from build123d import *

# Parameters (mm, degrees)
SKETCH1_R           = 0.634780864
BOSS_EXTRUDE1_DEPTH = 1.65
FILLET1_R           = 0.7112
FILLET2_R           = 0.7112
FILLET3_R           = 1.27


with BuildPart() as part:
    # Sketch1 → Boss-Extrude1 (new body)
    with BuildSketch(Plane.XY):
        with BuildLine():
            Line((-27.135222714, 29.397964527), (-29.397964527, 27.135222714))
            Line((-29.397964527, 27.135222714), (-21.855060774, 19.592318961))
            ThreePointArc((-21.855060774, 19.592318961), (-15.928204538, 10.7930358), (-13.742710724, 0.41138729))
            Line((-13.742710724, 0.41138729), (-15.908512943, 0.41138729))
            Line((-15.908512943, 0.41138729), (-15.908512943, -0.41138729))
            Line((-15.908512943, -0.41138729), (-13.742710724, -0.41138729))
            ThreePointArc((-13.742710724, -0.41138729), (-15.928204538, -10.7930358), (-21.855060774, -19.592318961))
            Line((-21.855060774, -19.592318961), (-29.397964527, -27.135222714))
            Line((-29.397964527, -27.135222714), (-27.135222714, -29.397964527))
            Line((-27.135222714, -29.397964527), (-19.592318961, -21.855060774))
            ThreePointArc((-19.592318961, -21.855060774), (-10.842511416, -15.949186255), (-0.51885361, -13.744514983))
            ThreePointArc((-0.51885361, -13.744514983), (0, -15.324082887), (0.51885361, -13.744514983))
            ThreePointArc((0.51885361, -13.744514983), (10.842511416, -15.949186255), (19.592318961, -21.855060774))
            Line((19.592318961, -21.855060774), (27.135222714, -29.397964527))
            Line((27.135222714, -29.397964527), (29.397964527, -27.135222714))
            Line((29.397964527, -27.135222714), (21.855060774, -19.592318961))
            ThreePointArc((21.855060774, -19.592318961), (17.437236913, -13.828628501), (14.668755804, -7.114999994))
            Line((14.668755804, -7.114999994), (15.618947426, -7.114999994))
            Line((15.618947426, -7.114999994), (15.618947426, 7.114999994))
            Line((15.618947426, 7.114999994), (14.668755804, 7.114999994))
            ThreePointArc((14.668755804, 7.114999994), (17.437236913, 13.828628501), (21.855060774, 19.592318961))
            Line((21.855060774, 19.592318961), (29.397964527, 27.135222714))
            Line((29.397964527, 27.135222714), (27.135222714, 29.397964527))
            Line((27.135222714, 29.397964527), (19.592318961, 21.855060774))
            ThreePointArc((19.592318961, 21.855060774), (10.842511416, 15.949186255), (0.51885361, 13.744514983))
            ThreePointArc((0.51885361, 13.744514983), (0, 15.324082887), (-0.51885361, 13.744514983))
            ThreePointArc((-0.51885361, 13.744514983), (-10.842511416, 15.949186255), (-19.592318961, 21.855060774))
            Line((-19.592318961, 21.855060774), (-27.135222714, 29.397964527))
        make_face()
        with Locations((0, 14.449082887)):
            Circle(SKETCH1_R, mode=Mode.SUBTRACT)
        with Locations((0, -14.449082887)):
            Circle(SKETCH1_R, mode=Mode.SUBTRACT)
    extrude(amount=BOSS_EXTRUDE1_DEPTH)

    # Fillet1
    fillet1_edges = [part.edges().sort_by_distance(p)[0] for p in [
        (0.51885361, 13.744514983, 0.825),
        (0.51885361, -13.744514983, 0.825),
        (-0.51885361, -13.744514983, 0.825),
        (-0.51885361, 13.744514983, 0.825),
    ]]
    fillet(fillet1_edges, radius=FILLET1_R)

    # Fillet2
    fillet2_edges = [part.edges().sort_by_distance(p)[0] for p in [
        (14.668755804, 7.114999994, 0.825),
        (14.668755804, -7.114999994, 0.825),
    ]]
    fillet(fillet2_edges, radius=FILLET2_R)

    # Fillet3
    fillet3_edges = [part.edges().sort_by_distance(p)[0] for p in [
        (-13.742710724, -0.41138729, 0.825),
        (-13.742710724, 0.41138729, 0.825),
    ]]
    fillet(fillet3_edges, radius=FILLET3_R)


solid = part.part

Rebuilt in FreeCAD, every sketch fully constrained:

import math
import FreeCAD as App
import Part
import Sketcher
from FreeCAD import Vector
Q = App.Units.Quantity


def edges_at(feature, points):
    """Names of the edges that pass closest to the given points."""
    edges = feature.Shape.Edges
    near = lambda p: min(range(len(edges)), key=lambda i: edges[i].distToShape(Part.Vertex(*p))[0])
    return sorted({f"Edge{near(p) + 1}" for p in points})

doc = App.newDocument("Part")
params = doc.addObject("Spreadsheet::Sheet", "Params")
for row, (alias, value) in enumerate([
    ("pad1_length", "1.65 mm"),
    ("fillet_radius", "0.028 in"),
    ("fillet2_radius", "0.028 in"),
    ("fillet3_radius", "0.05 in"),
], start=1):
    params.set(f"A{row}", alias)
    params.set(f"B{row}", "=" + value)
    params.setAlias(f"B{row}", alias)

body = doc.addObject("PartDesign::Body", "Body")

sketch1 = body.newObject("Sketcher::SketchObject", "Sketch")
sketch1.AttachmentSupport = (doc.getObject("XY_Plane"), [""])
sketch1.MapMode = "FlatFace"
sketch1.addGeometry(Part.LineSegment(Vector(-27.135223, 29.397965, 0), Vector(-29.397965, 27.135223, 0)), False)
sketch1.addGeometry(Part.LineSegment(Vector(-29.397965, 27.135223, 0), Vector(-21.855061, 19.592319, 0)), False)
sketch1.addGeometry(Part.ArcOfCircle(Part.Circle(Vector(-41.44738, 0, 0), Vector(0, 0, 1), 27.707723), math.radians(0.850724), math.radians(45)), False)
sketch1.addGeometry(Part.LineSegment(Vector(-13.742711, 0.411387, 0), Vector(-15.908513, 0.411387, 0)), False)
sketch1.addGeometry(Part.LineSegment(Vector(-15.908513, 0.411387, 0), Vector(-15.908513, -0.411387, 0)), False)
sketch1.addGeometry(Part.LineSegment(Vector(-15.908513, -0.411387, 0), Vector(-13.742711, -0.411387, 0)), False)
sketch1.addGeometry(Part.ArcOfCircle(Part.Circle(Vector(-41.44738, 0, 0), Vector(0, 0, 1), 27.707723), math.radians(-45), math.radians(-0.850724)), False)
sketch1.addGeometry(Part.LineSegment(Vector(-21.855061, -19.592319, 0), Vector(-29.397965, -27.135223, 0)), False)
sketch1.addGeometry(Part.LineSegment(Vector(-29.397965, -27.135223, 0), Vector(-27.135223, -29.397965, 0)), False)
sketch1.addGeometry(Part.LineSegment(Vector(-27.135223, -29.397965, 0), Vector(-19.592319, -21.855061, 0)), False)
sketch1.addGeometry(Part.ArcOfCircle(Part.Circle(Vector(0, -41.44738, 0), Vector(0, 0, 1), 27.707723), math.radians(91.072981), math.radians(135)), False)
sketch1.addGeometry(Part.ArcOfCircle(Part.Circle(Vector(0, -14.449083, 0), Vector(0, 0, 1), 0.875), math.radians(126.368448), math.radians(413.631552)), False)
sketch1.addGeometry(Part.ArcOfCircle(Part.Circle(Vector(0, -41.44738, 0), Vector(0, 0, 1), 27.707723), math.radians(45), math.radians(88.927019)), False)
sketch1.addGeometry(Part.LineSegment(Vector(19.592319, -21.855061, 0), Vector(27.135223, -29.397965, 0)), False)
sketch1.addGeometry(Part.LineSegment(Vector(27.135223, -29.397965, 0), Vector(29.397965, -27.135223, 0)), False)
sketch1.addGeometry(Part.LineSegment(Vector(29.397965, -27.135223, 0), Vector(21.855061, -19.592319, 0)), False)
sketch1.addGeometry(Part.ArcOfCircle(Part.Circle(Vector(41.44738, 0, 0), Vector(0, 0, 1), 27.707723), math.radians(-165.120465), math.radians(-135)), False)
sketch1.addGeometry(Part.LineSegment(Vector(14.668756, -7.115, 0), Vector(15.618947, -7.115, 0)), False)
sketch1.addGeometry(Part.LineSegment(Vector(15.618947, -7.115, 0), Vector(15.618947, 7.115, 0)), False)
sketch1.addGeometry(Part.LineSegment(Vector(15.618947, 7.115, 0), Vector(14.668756, 7.115, 0)), False)
sketch1.addGeometry(Part.ArcOfCircle(Part.Circle(Vector(41.44738, 0, 0), Vector(0, 0, 1), 27.707723), math.radians(135), math.radians(165.120465)), False)
sketch1.addGeometry(Part.LineSegment(Vector(21.855061, 19.592319, 0), Vector(29.397965, 27.135223, 0)), False)
sketch1.addGeometry(Part.LineSegment(Vector(29.397965, 27.135223, 0), Vector(27.135223, 29.397965, 0)), False)
sketch1.addGeometry(Part.LineSegment(Vector(27.135223, 29.397965, 0), Vector(19.592319, 21.855061, 0)), False)
sketch1.addGeometry(Part.ArcOfCircle(Part.Circle(Vector(0, 41.44738, 0), Vector(0, 0, 1), 27.707723), math.radians(-88.927019), math.radians(-45)), False)
sketch1.addGeometry(Part.ArcOfCircle(Part.Circle(Vector(0, 14.449083, 0), Vector(0, 0, 1), 0.875), math.radians(-53.631552), math.radians(233.631552)), False)
sketch1.addGeometry(Part.ArcOfCircle(Part.Circle(Vector(0, 41.44738, 0), Vector(0, 0, 1), 27.707723), math.radians(-135), math.radians(-91.072981)), False)
sketch1.addGeometry(Part.LineSegment(Vector(-19.592319, 21.855061, 0), Vector(-27.135223, 29.397965, 0)), False)
sketch1.addGeometry(Part.Circle(Vector(0, -14.449083, 0), Vector(0, 0, 1), 0.634781), False)
sketch1.addGeometry(Part.Circle(Vector(0, 14.449083, 0), Vector(0, 0, 1), 0.634781), False)
sketch1.addConstraint(Sketcher.Constraint("Coincident", 0, 2, 1, 1))
sketch1.addConstraint(Sketcher.Constraint("Tangent", 1, 2, 2, 2))
sketch1.addConstraint(Sketcher.Constraint("Coincident", 2, 1, 3, 1))
sketch1.addConstraint(Sketcher.Constraint("Coincident", 3, 2, 4, 1))
sketch1.addConstraint(Sketcher.Constraint("Coincident", 4, 2, 5, 1))
sketch1.addConstraint(Sketcher.Constraint("Coincident", 5, 2, 6, 2))
sketch1.addConstraint(Sketcher.Constraint("Tangent", 6, 1, 7, 1))
sketch1.addConstraint(Sketcher.Constraint("Coincident", 7, 2, 8, 1))
sketch1.addConstraint(Sketcher.Constraint("Coincident", 8, 2, 9, 1))
sketch1.addConstraint(Sketcher.Constraint("Tangent", 9, 2, 10, 2))
sketch1.addConstraint(Sketcher.Constraint("Coincident", 10, 1, 11, 1))
sketch1.addConstraint(Sketcher.Constraint("Coincident", 11, 2, 12, 2))
sketch1.addConstraint(Sketcher.Constraint("Tangent", 12, 1, 13, 1))
sketch1.addConstraint(Sketcher.Constraint("Coincident", 13, 2, 14, 1))
sketch1.addConstraint(Sketcher.Constraint("Coincident", 14, 2, 15, 1))
sketch1.addConstraint(Sketcher.Constraint("Tangent", 15, 2, 16, 2))
sketch1.addConstraint(Sketcher.Constraint("Coincident", 16, 1, 17, 1))
sketch1.addConstraint(Sketcher.Constraint("Coincident", 17, 2, 18, 1))
sketch1.addConstraint(Sketcher.Constraint("Coincident", 18, 2, 19, 1))
sketch1.addConstraint(Sketcher.Constraint("Coincident", 19, 2, 20, 2))
sketch1.addConstraint(Sketcher.Constraint("Tangent", 20, 1, 21, 1))
sketch1.addConstraint(Sketcher.Constraint("Coincident", 21, 2, 22, 1))
sketch1.addConstraint(Sketcher.Constraint("Coincident", 22, 2, 23, 1))
sketch1.addConstraint(Sketcher.Constraint("Tangent", 23, 2, 24, 2))
sketch1.addConstraint(Sketcher.Constraint("Coincident", 24, 1, 25, 1))
sketch1.addConstraint(Sketcher.Constraint("Coincident", 25, 2, 26, 2))
sketch1.addConstraint(Sketcher.Constraint("Tangent", 26, 1, 27, 1))
sketch1.addConstraint(Sketcher.Constraint("Coincident", 27, 2, 0, 1))
sketch1.addConstraint(Sketcher.Constraint("Horizontal", 3))
sketch1.addConstraint(Sketcher.Constraint("Vertical", 4))
sketch1.addConstraint(Sketcher.Constraint("Horizontal", 5))
sketch1.addConstraint(Sketcher.Constraint("Horizontal", 17))
sketch1.addConstraint(Sketcher.Constraint("Vertical", 18))
sketch1.addConstraint(Sketcher.Constraint("Horizontal", 19))
sketch1.addConstraint(Sketcher.Constraint("Coincident", 6, 3, 2, 3))
sketch1.addConstraint(Sketcher.Constraint("Coincident", 12, 3, 10, 3))
sketch1.addConstraint(Sketcher.Constraint("Coincident", 20, 3, 16, 3))
sketch1.addConstraint(Sketcher.Constraint("Coincident", 26, 3, 24, 3))
sketch1.addConstraint(Sketcher.Constraint("Coincident", 28, 3, 11, 3))
sketch1.addConstraint(Sketcher.Constraint("Coincident", 29, 3, 25, 3))
sketch1.addConstraint(Sketcher.Constraint("Equal", 2, 6))
sketch1.addConstraint(Sketcher.Constraint("Equal", 6, 10))
sketch1.addConstraint(Sketcher.Constraint("Equal", 10, 12))
sketch1.addConstraint(Sketcher.Constraint("Equal", 12, 16))
sketch1.addConstraint(Sketcher.Constraint("Equal", 16, 20))
sketch1.addConstraint(Sketcher.Constraint("Equal", 20, 24))
sketch1.addConstraint(Sketcher.Constraint("Equal", 11, 25))
sketch1.addConstraint(Sketcher.Constraint("Equal", 24, 26))
sketch1.addConstraint(Sketcher.Constraint("Equal", 28, 29))
sketch1.addConstraint(Sketcher.Constraint("Symmetric", 2, 3, 16, 3, -1, 1))
sketch1.addConstraint(Sketcher.Constraint("Symmetric", 10, 3, 24, 3, -1, 1))
sketch1.addConstraint(Sketcher.Constraint("Symmetric", 11, 3, 25, 3, -1, 1))
sketch1.addConstraint(Sketcher.Constraint("Symmetric", 0, 2, 14, 2, -1, 1))
sketch1.addConstraint(Sketcher.Constraint("Symmetric", 7, 2, 21, 2, -1, 1))
sketch1.addConstraint(Sketcher.Constraint("Symmetric", 8, 2, 22, 2, -1, 1))
sketch1.addConstraint(Sketcher.Constraint("Symmetric", 13, 2, 27, 2, -1, 1))
sketch1.addConstraint(Sketcher.Constraint("Symmetric", 10, 1, 11, 2, -2))
sketch1.addConstraint(Sketcher.Constraint("Symmetric", 8, 2, 13, 2, -2))
sketch1.addConstraint(Sketcher.Constraint("Symmetric", 7, 2, 14, 2, -2))
sketch1.addConstraint(Sketcher.Constraint("Symmetric", 2, 1, 5, 2, -1))
sketch1.addConstraint(Sketcher.Constraint("Perpendicular", 0, 1))
sketch1.addConstraint(Sketcher.Constraint("Perpendicular", 1, 7))
sketch1.addConstraint(Sketcher.Constraint("Perpendicular", 8, 9))
sketch1.addConstraint(Sketcher.Constraint("Vertical", 16, 1, 19, 2))
sketch1.addConstraint(Sketcher.Constraint("Equal", 7, 9))
sketch1.addConstraint(Sketcher.Constraint("Radius", 11, Q("0.875 mm")))
sketch1.addConstraint(Sketcher.Constraint("Diameter", 28, Q("1.269562 mm")))
sketch1.addConstraint(Sketcher.Constraint("DistanceY", 18, 1, 18, 2, Q("14.23 mm")))
sketch1.addConstraint(Sketcher.Constraint("DistanceX", 0, 2, -1, 1, Q("1.1574002 in")))
sketch1.addConstraint(Sketcher.Constraint("Radius", 2, Q("27.707723 mm")))
sketch1.addConstraint(Sketcher.Constraint("Distance", 0, Q("3.2 mm")))
sketch1.addConstraint(Sketcher.Constraint("DistanceX", 17, 1, 17, 2, Q("0.950192 mm")))
sketch1.addConstraint(Sketcher.Constraint("DistanceX", 25, 2, 18, 2, Q("16.137801 mm")))
sketch1.addConstraint(Sketcher.Constraint("DistanceX", 3, 2, 3, 1, Q("2.165802 mm")))
sketch1.addConstraint(Sketcher.Constraint("DistanceY", 4, 2, 4, 1, Q("0.822775 mm")))
pad1 = body.newObject("PartDesign::Pad", "Pad")
pad1.Profile = sketch1
pad1.setExpression("Length", "Params.pad1_length")
doc.recompute()

fillet = body.newObject("PartDesign::Fillet", "Fillet")
fillet.Base = (pad1, edges_at(pad1, [
    (0.519, 13.745, 0.825),
    (0.519, -13.745, 0.825),
    (-0.519, -13.745, 0.825),
    (-0.519, 13.745, 0.825),
]))
fillet.setExpression("Radius", "Params.fillet_radius")
doc.recompute()

fillet2 = body.newObject("PartDesign::Fillet", "Fillet001")
fillet2.Base = (fillet, edges_at(fillet, [(14.669, 7.115, 0.825), (14.669, -7.115, 0.825)]))
fillet2.setExpression("Radius", "Params.fillet2_radius")
doc.recompute()

fillet3 = body.newObject("PartDesign::Fillet", "Fillet002")
fillet3.Base = (fillet2, edges_at(fillet2, [(-13.743, -0.411, 0.825), (-13.743, 0.411, 0.825)]))
fillet3.setExpression("Radius", "Params.fillet3_radius")

doc.recompute()
